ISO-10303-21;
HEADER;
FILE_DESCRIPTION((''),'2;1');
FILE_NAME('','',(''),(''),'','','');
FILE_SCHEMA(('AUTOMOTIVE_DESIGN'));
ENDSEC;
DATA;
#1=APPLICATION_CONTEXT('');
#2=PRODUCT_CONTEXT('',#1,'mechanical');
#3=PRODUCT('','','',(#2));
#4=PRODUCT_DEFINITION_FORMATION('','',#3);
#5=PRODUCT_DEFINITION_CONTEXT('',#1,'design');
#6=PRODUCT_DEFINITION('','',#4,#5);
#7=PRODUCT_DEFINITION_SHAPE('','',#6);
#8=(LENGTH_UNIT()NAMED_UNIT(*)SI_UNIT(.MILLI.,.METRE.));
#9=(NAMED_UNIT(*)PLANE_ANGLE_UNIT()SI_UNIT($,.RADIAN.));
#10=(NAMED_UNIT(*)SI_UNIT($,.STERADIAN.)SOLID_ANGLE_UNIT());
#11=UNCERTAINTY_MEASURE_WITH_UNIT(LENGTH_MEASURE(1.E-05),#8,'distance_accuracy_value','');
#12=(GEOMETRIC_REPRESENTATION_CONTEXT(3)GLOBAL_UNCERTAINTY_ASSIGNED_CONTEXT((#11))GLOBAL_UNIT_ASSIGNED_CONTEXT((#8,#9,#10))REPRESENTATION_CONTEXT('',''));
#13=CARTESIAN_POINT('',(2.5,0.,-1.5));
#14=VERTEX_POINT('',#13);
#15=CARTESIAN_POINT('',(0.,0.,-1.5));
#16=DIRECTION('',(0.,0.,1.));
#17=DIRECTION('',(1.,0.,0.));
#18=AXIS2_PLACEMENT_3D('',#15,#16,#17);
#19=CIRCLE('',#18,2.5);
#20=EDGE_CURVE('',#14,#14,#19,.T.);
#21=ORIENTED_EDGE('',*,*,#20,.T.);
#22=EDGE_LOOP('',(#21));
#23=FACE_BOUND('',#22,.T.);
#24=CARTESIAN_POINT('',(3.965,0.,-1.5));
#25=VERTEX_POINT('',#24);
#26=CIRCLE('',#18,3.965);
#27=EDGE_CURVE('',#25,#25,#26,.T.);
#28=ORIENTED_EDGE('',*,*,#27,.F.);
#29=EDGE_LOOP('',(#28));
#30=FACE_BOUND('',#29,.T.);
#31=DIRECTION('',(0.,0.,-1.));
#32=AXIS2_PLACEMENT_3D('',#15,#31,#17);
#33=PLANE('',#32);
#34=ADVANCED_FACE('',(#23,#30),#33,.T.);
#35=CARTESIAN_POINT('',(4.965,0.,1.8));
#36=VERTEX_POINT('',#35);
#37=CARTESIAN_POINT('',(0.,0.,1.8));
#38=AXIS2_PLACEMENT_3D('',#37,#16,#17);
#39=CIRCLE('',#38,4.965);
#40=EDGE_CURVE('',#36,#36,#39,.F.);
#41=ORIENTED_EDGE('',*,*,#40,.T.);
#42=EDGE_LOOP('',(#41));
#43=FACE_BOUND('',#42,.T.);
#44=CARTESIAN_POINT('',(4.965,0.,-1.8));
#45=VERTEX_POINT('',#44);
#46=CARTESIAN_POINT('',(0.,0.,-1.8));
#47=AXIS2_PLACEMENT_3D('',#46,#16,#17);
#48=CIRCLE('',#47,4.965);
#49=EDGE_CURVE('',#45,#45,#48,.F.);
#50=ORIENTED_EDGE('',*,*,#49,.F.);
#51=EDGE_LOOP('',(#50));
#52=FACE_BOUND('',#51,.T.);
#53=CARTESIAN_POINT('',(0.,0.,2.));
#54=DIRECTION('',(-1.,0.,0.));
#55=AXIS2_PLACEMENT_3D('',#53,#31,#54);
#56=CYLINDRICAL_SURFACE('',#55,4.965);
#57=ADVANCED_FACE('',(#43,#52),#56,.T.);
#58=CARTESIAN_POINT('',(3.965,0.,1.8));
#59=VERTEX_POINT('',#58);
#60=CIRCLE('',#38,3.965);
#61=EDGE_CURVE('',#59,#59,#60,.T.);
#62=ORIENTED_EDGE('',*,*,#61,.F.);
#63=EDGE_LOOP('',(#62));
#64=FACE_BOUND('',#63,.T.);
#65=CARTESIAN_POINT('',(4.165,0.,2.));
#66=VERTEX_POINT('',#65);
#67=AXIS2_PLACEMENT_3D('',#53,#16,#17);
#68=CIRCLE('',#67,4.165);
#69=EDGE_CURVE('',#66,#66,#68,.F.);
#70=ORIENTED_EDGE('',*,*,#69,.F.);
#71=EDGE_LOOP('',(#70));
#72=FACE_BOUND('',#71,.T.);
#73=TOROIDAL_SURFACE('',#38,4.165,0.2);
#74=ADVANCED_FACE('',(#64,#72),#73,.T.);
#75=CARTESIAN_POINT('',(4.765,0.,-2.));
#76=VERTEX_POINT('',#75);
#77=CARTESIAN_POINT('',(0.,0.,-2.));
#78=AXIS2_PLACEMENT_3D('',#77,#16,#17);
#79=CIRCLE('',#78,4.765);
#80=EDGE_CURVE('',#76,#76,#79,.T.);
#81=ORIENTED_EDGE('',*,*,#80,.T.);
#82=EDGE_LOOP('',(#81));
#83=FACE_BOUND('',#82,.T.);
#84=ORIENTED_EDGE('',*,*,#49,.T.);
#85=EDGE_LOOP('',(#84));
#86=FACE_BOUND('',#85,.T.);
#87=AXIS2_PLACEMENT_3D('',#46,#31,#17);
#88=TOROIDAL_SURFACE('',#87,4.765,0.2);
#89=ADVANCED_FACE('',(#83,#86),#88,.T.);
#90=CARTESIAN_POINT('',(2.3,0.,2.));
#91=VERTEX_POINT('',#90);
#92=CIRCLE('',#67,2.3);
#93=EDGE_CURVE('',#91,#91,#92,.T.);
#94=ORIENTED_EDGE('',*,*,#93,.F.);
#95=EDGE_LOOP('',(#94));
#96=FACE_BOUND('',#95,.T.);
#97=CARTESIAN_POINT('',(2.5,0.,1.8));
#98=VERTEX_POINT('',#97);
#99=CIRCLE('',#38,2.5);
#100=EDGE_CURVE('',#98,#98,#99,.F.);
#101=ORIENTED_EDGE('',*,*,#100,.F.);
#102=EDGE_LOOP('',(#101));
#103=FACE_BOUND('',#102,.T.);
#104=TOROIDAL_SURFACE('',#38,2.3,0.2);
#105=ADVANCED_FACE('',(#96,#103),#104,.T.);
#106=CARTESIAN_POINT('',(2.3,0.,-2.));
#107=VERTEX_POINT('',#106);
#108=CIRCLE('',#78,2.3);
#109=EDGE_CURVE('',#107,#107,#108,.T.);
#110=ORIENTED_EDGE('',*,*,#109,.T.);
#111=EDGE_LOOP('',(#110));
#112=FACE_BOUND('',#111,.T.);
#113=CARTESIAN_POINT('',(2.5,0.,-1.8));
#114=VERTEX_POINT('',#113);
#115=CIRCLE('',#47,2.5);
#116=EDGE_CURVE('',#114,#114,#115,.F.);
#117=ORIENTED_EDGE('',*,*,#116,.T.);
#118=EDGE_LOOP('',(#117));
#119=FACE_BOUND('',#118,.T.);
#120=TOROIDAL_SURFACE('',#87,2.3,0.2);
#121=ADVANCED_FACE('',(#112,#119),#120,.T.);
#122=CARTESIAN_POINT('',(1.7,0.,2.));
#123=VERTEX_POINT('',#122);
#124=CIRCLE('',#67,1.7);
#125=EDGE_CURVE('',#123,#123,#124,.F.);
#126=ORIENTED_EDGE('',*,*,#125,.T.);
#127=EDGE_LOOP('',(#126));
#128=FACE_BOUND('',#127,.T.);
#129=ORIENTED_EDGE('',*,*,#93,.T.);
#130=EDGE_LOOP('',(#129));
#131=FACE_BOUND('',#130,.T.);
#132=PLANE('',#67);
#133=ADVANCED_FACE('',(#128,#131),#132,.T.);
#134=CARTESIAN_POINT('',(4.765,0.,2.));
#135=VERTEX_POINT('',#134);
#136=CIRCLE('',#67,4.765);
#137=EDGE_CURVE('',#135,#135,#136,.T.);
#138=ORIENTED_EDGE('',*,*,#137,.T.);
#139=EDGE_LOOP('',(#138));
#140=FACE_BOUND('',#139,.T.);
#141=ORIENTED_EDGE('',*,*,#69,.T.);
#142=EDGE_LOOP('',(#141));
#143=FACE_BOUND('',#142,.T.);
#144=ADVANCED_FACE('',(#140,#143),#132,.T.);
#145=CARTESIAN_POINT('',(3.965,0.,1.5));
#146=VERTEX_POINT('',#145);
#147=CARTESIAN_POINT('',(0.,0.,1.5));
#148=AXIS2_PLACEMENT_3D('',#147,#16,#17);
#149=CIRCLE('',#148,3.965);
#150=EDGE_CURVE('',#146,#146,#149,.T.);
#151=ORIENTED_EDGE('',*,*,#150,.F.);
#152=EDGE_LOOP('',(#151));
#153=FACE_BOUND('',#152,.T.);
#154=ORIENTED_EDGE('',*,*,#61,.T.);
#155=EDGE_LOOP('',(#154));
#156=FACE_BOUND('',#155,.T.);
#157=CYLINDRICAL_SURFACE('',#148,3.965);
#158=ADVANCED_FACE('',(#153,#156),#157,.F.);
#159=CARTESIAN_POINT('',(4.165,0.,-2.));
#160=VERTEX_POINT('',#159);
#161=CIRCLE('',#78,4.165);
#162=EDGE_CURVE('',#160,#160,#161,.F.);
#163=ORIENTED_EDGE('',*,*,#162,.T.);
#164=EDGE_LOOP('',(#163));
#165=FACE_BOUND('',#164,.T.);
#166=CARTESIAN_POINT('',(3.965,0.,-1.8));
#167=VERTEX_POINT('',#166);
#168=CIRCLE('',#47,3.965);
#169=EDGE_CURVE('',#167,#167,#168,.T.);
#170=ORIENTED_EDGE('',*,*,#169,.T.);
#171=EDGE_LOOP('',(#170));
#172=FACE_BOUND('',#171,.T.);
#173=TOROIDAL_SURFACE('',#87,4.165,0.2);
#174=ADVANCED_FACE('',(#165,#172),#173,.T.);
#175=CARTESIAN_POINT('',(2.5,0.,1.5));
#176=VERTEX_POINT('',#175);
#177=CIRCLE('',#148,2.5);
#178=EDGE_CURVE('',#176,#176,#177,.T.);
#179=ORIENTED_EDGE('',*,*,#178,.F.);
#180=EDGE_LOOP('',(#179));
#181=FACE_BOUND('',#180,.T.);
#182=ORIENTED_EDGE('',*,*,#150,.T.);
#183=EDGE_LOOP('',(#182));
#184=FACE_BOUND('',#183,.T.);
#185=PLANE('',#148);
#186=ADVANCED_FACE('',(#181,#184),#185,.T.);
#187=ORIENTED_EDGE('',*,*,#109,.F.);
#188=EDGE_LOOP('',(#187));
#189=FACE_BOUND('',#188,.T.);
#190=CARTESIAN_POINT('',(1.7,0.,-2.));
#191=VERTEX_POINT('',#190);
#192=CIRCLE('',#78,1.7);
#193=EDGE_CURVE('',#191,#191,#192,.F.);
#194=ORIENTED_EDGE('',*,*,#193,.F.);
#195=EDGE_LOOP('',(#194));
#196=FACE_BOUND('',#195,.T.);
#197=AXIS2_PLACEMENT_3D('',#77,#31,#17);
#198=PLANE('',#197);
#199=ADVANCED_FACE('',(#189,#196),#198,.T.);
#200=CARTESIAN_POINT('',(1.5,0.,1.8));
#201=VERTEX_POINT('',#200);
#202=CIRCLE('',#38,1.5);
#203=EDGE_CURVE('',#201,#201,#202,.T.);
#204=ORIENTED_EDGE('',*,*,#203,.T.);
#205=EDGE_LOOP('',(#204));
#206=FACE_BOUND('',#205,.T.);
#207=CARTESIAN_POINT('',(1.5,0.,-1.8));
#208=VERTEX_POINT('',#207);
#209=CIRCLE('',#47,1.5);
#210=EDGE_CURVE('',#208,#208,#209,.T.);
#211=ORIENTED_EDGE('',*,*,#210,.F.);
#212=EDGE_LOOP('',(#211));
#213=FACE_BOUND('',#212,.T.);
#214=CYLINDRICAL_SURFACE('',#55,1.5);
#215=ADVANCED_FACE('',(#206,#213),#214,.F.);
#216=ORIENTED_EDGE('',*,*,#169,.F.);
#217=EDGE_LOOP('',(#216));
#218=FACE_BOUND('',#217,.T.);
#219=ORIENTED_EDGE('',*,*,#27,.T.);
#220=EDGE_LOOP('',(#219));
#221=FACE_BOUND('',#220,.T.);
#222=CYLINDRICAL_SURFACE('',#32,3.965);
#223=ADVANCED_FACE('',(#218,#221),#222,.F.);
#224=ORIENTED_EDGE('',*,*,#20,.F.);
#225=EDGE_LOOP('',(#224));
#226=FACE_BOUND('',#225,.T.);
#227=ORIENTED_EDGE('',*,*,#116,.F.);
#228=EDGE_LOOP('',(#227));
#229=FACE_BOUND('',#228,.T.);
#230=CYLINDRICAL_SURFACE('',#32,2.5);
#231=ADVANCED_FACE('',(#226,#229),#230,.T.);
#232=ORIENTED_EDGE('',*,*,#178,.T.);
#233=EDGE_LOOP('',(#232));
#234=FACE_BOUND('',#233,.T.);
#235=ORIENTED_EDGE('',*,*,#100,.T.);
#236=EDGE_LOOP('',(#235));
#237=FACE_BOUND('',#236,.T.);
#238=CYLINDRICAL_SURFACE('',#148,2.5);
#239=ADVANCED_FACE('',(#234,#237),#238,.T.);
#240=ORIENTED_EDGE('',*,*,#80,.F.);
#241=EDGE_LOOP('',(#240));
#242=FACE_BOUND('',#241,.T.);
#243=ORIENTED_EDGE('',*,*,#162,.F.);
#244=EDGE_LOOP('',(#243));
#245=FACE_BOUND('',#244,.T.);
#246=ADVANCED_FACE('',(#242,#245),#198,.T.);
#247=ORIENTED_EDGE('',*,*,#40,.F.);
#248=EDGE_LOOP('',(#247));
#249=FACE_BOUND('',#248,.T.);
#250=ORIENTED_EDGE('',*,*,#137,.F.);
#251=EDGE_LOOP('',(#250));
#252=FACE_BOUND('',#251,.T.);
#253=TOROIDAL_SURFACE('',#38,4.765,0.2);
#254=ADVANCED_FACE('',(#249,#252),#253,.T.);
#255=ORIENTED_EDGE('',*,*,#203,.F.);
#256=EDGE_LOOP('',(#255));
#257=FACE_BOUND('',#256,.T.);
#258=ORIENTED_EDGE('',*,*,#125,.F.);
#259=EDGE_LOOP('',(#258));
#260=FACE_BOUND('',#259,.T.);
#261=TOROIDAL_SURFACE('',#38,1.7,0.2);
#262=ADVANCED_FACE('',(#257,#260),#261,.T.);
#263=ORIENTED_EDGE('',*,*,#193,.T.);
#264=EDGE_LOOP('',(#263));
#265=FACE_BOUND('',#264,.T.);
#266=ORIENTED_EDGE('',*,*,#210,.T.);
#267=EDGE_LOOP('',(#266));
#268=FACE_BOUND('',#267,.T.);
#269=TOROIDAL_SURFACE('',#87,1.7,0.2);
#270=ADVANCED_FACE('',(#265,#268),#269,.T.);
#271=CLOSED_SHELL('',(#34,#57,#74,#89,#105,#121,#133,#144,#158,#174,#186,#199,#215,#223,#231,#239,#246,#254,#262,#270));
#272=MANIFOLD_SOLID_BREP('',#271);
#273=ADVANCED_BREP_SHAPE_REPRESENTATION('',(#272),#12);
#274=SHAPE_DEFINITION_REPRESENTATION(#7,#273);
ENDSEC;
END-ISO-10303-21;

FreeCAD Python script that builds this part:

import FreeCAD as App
import Part
import Sketcher

V = App.Vector
Q = App.Units.Quantity


def edges_at(feature, points):
    """Names of the edges that pass closest to the given points."""
    edges = feature.Shape.Edges
    near = lambda p: min(range(len(edges)), key=lambda i: edges[i].distToShape(Part.Vertex(*p))[0])
    return sorted({f"Edge{near(p) + 1}" for p in points})

doc = App.newDocument("Part")
params = doc.addObject("Spreadsheet::Sheet", "Params")
for row, (alias, value) in enumerate([
    ("sketch1_diameter", "3 mm"),
    ("sketch1_diameter2", "9.93 mm"),
    ("pad1_length", "2 mm"),
    ("sketch2_diameter", "5 mm"),
    ("sketch2_diameter2", "7.93 mm"),
    ("pocket1_length", "0.5 mm"),
    ("fillet_radius", "0.2 mm"),
], start=1):
    params.set(f"A{row}", alias)
    params.set(f"B{row}", "=" + value)
    params.setAlias(f"B{row}", alias)

body = doc.addObject("PartDesign::Body", "Body")

# Sketch on XY plane
sketch1 = body.newObject("Sketcher::SketchObject", "Sketch")
sketch1.AttachmentSupport = (doc.getObject("XY_Plane"), [""])
sketch1.MapMode = "FlatFace"
sketch1.addGeometry(Part.Circle(V(0, 0, 0), V(0, 0, 1), 5), False)
sketch1.addGeometry(Part.Circle(V(0, 0, 0), V(0, 0, 1), 1.5), False)
sketch1.addConstraint(Sketcher.Constraint("Coincident", 0, 3, -1, 1))
sketch1.addConstraint(Sketcher.Constraint("Coincident", 1, 3, -1, 1))
sketch1.addConstraint(Sketcher.Constraint("Diameter", 1, Q("3 mm")))
sketch1.addConstraint(Sketcher.Constraint("Diameter", 0, Q("9.93 mm")))
sketch1.setExpression("Constraints[2]", "Params.sketch1_diameter")
sketch1.setExpression("Constraints[3]", "Params.sketch1_diameter2")
pad1 = body.newObject("PartDesign::Pad", "Pad")
pad1.Profile = sketch1
pad1.setExpression("Length", "Params.pad1_length")

# Sketch on XY plane
sketch2 = body.newObject("Sketcher::SketchObject", "Sketch001")
sketch2.AttachmentSupport = (doc.getObject("XY_Plane"), [""])
sketch2.MapMode = "FlatFace"
sketch2.AttachmentOffset = App.Placement(V(0, 0, 2), App.Rotation())
sketch2.addGeometry(Part.Circle(V(0, 0, 0), V(0, 0, 1), 4), False)
sketch2.addGeometry(Part.Circle(V(0, 0, 0), V(0, 0, 1), 2.5), False)
sketch2.addConstraint(Sketcher.Constraint("Coincident", 0, 3, -1, 1))
sketch2.addConstraint(Sketcher.Constraint("Coincident", 1, 3, -1, 1))
sketch2.addConstraint(Sketcher.Constraint("Diameter", 1, Q("5 mm")))
sketch2.addConstraint(Sketcher.Constraint("Diameter", 0, Q("7.93 mm")))
sketch2.setExpression("Constraints[2]", "Params.sketch2_diameter")
sketch2.setExpression("Constraints[3]", "Params.sketch2_diameter2")
pocket1 = body.newObject("PartDesign::Pocket", "Pocket")
pocket1.Profile = sketch2
pocket1.setExpression("Length", "Params.pocket1_length")
doc.recompute()

fillet = body.newObject("PartDesign::Fillet", "Fillet")
fillet.Base = (pocket1, edges_at(pocket1, [
    (-3.965, 0, 2),
    (-2.5, 0, 2),
    (-4.965, 0, 2),
    (-1.5, 0, 2),
]))
fillet.setExpression("Radius", "Params.fillet_radius")
body2 = doc.addObject("PartDesign::Body", "Body001")
doc.recompute()

body2.BaseFeature = body
doc.recompute()

mirroring = doc.addObject("Part::Mirroring", "Mirroring")
mirroring.Source = body
mirroring.Base = V(0, 0, 0)
mirroring.Normal = V(0, 0, 1)
body3 = doc.addObject("PartDesign::Body", "Body002")
body3.BaseFeature = mirroring
boolean = body2.newObject("PartDesign::Boolean", "Boolean")
boolean.Type = "Fuse"
boolean.addObjects([body3])
doc.recompute()
mirroring.Visibility = False

doc.recompute()
